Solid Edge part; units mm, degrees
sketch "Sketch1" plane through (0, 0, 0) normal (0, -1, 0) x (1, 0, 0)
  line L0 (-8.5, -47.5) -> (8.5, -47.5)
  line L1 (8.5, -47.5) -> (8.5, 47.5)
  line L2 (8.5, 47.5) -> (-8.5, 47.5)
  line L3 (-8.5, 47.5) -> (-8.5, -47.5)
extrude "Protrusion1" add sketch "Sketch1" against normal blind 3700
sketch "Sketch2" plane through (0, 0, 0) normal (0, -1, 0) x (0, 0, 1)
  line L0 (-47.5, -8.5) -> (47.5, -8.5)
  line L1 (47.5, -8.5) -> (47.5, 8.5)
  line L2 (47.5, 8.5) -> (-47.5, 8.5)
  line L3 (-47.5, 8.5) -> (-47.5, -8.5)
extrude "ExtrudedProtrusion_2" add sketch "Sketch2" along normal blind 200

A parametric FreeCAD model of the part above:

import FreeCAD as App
import Part
import Sketcher

V = App.Vector

doc = App.newDocument("Part")
body = doc.addObject("PartDesign::Body", "Body")

# Sketch on XZ plane
sketch1 = body.newObject("Sketcher::SketchObject", "Sketch")
sketch1.AttachmentSupport = (doc.getObject("XZ_Plane"), [""])
sketch1.MapMode = "FlatFace"
sketch1.addGeometry(Part.LineSegment(V(-8, 48, 0), V(-8, -48, 0)), False)
sketch1.addGeometry(Part.LineSegment(V(-8, -48, 0), V(8, -48, 0)), False)
sketch1.addGeometry(Part.LineSegment(V(8, -48, 0), V(8, 48, 0)), False)
sketch1.addGeometry(Part.LineSegment(V(8, 48, 0), V(-8, 48, 0)), False)
sketch1.addConstraint(Sketcher.Constraint("Coincident", 0, 2, 1, 1))
sketch1.addConstraint(Sketcher.Constraint("Coincident", 1, 2, 2, 1))
sketch1.addConstraint(Sketcher.Constraint("Coincident", 2, 2, 3, 1))
sketch1.addConstraint(Sketcher.Constraint("Coincident", 3, 2, 0, 1))
sketch1.addConstraint(Sketcher.Constraint("Vertical", 0))
sketch1.addConstraint(Sketcher.Constraint("Horizontal", 1))
sketch1.addConstraint(Sketcher.Constraint("Vertical", 2))
sketch1.addConstraint(Sketcher.Constraint("Horizontal", 3))
sketch1.addConstraint(Sketcher.Constraint("Symmetric", 0, 2, 2, 2, -1, 1))
sketch1.addConstraint(Sketcher.Constraint("DistanceX", 1, 1, 1, 2, 17.0))
sketch1.addConstraint(Sketcher.Constraint("DistanceY", 0, 2, 0, 1, 95.0))
pad1 = body.newObject("PartDesign::Pad", "Pad")
pad1.Profile = sketch1
pad1.Length = 3700
pad1.Reversed = True

# Sketch on XZ plane
sketch2 = body.newObject("Sketcher::SketchObject", "Sketch001")
sketch2.AttachmentSupport = (doc.getObject("XZ_Plane"), [""])
sketch2.MapMode = "FlatFace"
sketch2.addGeometry(Part.LineSegment(V(-8, -48, 0), V(8, -48, 0)), False)
sketch2.addGeometry(Part.LineSegment(V(8, -48, 0), V(8, 48, 0)), False)
sketch2.addGeometry(Part.LineSegment(V(8, 48, 0), V(-8, 48, 0)), False)
sketch2.addGeometry(Part.LineSegment(V(-8, 48, 0), V(-8, -48, 0)), False)
sketch2.addConstraint(Sketcher.Constraint("Coincident", 0, 2, 1, 1))
sketch2.addConstraint(Sketcher.Constraint("Coincident", 1, 2, 2, 1))
sketch2.addConstraint(Sketcher.Constraint("Coincident", 2, 2, 3, 1))
sketch2.addConstraint(Sketcher.Constraint("Coincident", 3, 2, 0, 1))
sketch2.addConstraint(Sketcher.Constraint("Horizontal", 0))
sketch2.addConstraint(Sketcher.Constraint("Vertical", 1))
sketch2.addConstraint(Sketcher.Constraint("Horizontal", 2))
sketch2.addConstraint(Sketcher.Constraint("Vertical", 3))
sketch2.addConstraint(Sketcher.Constraint("Symmetric", 0, 2, 2, 2, -1, 1))
sketch2.addConstraint(Sketcher.Constraint("DistanceX", 0, 1, 0, 2, 17.0))
sketch2.addConstraint(Sketcher.Constraint("DistanceY", 1, 1, 1, 2, 95.0))
pad2 = body.newObject("PartDesign::Pad", "Pad001")
pad2.Profile = sketch2
pad2.Length = 200

doc.recompute()
